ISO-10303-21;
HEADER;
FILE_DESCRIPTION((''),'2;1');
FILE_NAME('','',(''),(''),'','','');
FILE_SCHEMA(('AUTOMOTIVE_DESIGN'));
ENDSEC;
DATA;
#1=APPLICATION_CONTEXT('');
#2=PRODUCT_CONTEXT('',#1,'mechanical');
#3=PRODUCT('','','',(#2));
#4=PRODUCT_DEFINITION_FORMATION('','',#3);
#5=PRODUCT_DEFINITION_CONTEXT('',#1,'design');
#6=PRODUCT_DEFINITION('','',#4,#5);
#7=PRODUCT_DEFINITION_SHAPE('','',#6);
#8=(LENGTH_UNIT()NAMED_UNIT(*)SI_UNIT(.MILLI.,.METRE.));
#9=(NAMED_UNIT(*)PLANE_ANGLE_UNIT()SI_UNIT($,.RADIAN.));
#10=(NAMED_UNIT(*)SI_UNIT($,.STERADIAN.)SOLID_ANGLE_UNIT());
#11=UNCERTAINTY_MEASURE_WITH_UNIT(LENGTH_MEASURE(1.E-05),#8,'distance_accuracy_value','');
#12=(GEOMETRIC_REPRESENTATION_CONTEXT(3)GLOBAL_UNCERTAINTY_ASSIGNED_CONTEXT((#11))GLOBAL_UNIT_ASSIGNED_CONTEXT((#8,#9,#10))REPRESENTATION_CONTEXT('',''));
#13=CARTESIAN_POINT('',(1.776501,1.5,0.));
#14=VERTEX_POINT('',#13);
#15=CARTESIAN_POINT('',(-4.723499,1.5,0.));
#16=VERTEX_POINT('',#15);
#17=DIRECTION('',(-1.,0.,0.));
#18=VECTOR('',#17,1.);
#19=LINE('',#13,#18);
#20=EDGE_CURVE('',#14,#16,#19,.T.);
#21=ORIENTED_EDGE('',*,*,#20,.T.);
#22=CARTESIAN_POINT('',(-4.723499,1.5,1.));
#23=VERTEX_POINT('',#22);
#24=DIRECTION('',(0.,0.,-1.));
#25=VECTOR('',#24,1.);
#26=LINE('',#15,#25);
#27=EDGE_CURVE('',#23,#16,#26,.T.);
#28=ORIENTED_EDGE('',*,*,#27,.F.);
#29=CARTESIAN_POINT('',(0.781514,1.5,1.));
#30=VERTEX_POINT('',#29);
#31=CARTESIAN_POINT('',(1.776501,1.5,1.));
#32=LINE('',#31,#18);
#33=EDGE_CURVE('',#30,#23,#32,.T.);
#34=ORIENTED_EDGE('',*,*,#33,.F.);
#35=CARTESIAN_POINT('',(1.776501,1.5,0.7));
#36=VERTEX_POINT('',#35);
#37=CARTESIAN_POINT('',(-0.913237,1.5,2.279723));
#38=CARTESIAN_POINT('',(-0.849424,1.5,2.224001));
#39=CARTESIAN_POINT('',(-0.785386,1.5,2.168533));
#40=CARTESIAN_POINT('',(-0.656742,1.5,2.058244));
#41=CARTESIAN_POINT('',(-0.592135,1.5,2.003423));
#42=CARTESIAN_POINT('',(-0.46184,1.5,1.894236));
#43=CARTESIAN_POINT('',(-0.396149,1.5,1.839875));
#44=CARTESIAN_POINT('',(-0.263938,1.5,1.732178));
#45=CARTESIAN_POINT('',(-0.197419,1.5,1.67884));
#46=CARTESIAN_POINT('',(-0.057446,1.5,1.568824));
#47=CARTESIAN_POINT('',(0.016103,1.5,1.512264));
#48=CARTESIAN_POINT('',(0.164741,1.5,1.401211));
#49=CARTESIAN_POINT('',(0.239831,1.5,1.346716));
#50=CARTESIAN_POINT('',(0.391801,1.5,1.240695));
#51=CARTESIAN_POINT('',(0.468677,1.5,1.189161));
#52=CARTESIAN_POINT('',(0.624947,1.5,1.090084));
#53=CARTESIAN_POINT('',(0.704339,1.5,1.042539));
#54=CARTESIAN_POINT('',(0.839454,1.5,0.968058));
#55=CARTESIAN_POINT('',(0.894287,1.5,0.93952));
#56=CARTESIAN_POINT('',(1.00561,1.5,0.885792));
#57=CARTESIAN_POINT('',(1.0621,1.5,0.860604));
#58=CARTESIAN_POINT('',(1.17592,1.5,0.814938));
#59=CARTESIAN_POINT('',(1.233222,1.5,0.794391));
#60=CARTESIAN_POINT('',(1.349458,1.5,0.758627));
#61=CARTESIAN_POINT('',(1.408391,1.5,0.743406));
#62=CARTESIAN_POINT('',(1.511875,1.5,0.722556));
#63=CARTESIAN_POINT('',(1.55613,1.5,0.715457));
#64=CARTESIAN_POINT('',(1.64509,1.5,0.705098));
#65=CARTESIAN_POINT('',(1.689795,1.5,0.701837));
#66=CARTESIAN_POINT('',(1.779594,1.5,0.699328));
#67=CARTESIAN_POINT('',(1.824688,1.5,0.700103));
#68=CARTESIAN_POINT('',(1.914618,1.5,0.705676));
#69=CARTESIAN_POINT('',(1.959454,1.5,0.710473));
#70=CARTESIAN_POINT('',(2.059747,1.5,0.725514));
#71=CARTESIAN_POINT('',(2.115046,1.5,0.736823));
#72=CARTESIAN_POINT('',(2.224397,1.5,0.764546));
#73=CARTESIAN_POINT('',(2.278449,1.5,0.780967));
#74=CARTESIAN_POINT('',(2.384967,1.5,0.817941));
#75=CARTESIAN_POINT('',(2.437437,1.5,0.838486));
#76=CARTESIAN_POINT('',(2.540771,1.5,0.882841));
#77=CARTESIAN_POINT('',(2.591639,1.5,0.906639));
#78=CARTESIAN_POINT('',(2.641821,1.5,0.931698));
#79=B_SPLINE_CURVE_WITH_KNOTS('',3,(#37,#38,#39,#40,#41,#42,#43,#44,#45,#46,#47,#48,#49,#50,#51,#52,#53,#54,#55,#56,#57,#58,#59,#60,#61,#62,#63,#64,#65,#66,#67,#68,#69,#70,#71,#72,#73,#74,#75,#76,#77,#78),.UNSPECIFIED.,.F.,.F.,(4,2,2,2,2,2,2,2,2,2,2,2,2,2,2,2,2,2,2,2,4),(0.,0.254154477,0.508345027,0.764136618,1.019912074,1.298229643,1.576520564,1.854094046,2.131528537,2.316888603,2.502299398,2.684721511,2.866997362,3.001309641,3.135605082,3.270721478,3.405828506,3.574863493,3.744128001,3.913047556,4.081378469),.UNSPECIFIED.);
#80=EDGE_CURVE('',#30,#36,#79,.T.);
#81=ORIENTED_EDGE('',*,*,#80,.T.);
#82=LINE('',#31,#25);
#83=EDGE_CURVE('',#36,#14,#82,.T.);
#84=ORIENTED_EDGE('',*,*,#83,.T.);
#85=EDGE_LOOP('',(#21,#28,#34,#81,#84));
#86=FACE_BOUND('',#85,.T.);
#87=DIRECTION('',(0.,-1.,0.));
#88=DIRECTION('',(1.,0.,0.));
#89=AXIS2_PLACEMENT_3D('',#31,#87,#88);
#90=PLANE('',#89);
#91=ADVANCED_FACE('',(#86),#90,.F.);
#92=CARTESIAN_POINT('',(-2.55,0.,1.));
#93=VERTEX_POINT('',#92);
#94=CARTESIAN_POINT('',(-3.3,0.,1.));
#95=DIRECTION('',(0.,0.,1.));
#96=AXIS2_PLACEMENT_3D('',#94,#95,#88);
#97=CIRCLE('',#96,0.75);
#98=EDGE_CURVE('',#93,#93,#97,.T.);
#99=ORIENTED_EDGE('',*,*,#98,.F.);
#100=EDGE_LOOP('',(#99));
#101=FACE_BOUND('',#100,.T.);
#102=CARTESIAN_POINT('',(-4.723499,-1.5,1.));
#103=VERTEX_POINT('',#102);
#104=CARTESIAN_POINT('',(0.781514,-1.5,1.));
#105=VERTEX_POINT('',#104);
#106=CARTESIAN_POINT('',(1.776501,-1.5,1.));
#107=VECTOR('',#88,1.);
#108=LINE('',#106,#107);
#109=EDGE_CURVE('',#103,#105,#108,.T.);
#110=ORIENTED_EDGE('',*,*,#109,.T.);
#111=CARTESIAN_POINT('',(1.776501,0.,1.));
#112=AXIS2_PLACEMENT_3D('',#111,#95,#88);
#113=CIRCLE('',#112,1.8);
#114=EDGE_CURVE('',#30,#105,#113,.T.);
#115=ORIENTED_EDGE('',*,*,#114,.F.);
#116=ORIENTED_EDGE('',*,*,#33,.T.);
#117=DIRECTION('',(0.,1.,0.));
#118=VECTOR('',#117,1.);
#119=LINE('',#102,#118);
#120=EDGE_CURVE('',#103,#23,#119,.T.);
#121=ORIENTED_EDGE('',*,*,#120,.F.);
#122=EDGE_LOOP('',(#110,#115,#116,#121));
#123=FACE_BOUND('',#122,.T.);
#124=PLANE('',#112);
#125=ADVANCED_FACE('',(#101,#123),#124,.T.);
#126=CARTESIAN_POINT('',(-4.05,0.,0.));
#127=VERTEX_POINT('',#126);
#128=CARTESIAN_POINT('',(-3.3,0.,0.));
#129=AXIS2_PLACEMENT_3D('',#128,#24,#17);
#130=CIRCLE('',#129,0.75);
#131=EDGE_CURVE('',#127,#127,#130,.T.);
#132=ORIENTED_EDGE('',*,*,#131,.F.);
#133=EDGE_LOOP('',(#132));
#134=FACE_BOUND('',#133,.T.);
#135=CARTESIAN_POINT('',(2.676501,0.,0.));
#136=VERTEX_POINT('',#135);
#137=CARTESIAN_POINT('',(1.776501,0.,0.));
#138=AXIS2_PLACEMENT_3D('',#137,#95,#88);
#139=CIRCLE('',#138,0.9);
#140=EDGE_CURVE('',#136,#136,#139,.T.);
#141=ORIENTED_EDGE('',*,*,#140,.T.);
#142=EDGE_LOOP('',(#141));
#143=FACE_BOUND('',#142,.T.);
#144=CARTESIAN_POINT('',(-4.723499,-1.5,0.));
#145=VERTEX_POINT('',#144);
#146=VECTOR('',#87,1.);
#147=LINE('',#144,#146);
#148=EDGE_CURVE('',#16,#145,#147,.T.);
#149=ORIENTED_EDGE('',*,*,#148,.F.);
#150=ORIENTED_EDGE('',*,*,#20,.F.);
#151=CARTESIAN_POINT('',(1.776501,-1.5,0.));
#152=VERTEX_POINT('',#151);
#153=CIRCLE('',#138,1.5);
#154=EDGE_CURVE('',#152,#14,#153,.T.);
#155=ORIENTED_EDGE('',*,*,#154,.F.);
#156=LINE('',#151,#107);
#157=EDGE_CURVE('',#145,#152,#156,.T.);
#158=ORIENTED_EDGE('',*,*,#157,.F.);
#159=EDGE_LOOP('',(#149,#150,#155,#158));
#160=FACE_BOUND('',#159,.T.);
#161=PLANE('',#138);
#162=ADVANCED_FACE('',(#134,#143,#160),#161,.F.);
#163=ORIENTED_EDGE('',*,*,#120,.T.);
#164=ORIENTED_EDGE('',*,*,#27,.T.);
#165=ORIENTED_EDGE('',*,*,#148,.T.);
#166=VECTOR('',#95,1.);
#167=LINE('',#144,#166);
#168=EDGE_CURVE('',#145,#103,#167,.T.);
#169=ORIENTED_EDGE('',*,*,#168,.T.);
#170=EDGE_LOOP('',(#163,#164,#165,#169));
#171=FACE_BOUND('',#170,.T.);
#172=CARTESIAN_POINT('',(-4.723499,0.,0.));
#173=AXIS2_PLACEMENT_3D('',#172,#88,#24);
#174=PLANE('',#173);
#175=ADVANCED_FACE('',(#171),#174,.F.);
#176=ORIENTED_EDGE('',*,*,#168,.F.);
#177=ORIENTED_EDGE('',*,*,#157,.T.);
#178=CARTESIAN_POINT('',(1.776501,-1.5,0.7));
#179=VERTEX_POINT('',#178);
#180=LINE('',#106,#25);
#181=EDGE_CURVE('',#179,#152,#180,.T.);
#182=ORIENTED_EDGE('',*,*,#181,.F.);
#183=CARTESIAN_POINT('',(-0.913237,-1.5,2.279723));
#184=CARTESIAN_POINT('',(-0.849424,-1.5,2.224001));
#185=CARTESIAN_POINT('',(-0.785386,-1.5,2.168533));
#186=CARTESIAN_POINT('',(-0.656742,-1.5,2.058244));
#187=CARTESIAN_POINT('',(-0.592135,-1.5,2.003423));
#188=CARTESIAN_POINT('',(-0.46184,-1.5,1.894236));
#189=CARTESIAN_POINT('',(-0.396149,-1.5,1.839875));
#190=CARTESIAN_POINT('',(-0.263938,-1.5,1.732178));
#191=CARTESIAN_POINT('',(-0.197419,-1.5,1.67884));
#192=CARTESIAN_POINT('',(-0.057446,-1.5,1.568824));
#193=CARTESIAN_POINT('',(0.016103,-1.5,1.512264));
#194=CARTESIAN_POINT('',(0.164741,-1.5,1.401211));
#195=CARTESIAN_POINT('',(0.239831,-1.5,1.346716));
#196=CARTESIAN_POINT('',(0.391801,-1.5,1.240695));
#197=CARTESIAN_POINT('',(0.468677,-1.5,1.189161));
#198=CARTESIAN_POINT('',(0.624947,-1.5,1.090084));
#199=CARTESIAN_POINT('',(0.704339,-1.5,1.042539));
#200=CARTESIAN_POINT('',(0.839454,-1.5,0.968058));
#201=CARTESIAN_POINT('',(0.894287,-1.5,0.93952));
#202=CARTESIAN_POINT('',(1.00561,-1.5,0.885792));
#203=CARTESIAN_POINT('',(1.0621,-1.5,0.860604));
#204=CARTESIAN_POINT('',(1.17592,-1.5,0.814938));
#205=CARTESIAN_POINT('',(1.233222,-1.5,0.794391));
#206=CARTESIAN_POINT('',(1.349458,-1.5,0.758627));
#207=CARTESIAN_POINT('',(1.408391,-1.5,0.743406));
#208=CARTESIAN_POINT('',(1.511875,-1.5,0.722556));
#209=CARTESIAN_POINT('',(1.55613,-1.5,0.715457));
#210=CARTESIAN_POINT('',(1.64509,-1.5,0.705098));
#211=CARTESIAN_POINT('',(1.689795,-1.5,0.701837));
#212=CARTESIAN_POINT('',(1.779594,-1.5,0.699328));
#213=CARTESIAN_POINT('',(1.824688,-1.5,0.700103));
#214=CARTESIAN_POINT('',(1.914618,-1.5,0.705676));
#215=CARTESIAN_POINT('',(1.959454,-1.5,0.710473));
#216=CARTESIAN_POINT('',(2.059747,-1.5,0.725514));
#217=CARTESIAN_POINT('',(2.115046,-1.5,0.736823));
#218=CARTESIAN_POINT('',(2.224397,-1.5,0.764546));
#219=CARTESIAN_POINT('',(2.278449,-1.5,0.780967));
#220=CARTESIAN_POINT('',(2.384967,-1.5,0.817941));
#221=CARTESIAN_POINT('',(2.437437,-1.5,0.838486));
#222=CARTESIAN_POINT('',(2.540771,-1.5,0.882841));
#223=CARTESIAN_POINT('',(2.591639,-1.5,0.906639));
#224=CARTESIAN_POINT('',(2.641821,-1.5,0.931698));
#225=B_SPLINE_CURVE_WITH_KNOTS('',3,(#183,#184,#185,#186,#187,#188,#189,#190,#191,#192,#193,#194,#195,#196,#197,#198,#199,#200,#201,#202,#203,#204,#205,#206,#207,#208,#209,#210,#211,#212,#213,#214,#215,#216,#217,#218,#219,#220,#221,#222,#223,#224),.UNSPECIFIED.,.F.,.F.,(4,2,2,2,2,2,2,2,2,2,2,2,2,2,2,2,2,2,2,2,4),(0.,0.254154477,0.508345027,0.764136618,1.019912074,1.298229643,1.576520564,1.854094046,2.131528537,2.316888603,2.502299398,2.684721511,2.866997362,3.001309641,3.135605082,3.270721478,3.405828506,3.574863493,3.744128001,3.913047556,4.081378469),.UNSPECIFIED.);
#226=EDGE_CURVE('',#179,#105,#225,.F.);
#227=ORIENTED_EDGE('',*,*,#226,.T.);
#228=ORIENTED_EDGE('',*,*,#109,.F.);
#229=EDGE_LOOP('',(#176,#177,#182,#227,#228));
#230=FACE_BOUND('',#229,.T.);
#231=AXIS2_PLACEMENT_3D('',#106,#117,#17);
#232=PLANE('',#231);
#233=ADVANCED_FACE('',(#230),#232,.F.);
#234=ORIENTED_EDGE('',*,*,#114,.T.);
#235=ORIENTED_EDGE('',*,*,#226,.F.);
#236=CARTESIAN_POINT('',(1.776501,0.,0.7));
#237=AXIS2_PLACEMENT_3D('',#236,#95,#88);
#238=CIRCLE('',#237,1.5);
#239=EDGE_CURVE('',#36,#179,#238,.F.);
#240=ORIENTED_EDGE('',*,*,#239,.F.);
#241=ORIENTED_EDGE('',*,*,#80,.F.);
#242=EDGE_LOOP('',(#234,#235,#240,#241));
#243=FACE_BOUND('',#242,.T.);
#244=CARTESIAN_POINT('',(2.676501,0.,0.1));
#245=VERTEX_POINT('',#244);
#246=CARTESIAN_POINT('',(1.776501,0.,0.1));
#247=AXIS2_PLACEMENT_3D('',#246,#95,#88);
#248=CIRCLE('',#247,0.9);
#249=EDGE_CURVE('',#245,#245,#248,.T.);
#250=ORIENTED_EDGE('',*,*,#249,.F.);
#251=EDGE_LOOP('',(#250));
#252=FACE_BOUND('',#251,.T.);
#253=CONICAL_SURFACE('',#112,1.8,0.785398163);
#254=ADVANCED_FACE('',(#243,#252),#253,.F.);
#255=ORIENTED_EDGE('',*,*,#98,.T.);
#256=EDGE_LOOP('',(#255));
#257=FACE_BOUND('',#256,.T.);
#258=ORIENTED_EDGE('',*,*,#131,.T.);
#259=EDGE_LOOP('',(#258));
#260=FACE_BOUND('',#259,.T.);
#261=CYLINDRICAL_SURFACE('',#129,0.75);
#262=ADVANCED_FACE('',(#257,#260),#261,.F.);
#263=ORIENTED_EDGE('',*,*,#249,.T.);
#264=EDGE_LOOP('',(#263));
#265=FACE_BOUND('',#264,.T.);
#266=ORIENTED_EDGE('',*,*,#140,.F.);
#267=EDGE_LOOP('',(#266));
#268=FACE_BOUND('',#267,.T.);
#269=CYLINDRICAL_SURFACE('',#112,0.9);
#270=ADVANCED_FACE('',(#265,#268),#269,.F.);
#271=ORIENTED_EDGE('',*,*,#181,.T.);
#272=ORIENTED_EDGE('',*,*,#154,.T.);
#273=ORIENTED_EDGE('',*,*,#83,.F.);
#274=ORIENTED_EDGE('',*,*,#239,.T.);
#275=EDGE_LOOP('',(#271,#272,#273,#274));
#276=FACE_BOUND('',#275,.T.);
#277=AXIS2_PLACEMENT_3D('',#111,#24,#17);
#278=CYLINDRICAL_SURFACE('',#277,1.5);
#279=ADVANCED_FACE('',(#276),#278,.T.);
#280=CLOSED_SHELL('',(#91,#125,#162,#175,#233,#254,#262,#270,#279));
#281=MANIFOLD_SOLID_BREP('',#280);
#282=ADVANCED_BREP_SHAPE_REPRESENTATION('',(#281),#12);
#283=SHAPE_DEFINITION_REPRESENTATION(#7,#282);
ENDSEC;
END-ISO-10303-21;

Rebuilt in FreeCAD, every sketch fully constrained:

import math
import FreeCAD as App
import Part
import Sketcher
from FreeCAD import Vector
Q = App.Units.Quantity

doc = App.newDocument("Part")
params = doc.addObject("Spreadsheet::Sheet", "Params")
for row, (alias, value) in enumerate([
    ("sketch1_radius", "1.5 mm"),
    ("sketch1_width", "1.5 mm"),
    ("pad1_length", "1 mm"),
    ("sketch2_width", "3 mm"),
    ("sketch2_height", "1 mm"),
    ("pad2_length", "5 mm"),
    ("sketch3_diameter", "1.5 mm"),
    ("hole_diameter", "1.5 mm"),
    ("sketch4_height", "1 mm"),
    ("sketch4_width", "1.8 mm"),
    ("sketch4_width2", "0.9 mm"),
    ("groove_angle", "360 deg"),
], start=1):
    params.set(f"A{row}", alias)
    params.set(f"B{row}", "=" + value)
    params.setAlias(f"B{row}", alias)

body = doc.addObject("PartDesign::Body", "Body")

sketch1 = body.newObject("Sketcher::SketchObject", "Sketch")
sketch1.AttachmentSupport = (doc.getObject("XY_Plane"), [""])
sketch1.MapMode = "FlatFace"
sketch1.addGeometry([
    Part.LineSegment(Vector(1.8, 1.5, 0), Vector(0.3, 1.5, 0)),
    Part.LineSegment(Vector(0.3, 1.5, 0), Vector(0.3, -1.5, 0)),
    Part.LineSegment(Vector(0.3, -1.5, 0), Vector(1.8, -1.5, 0)),
    Part.ArcOfCircle(Part.Circle(Vector(1.8, 0, 0), Vector(0, 0, 1), 1.5), math.radians(-90), math.radians(90)),
], False)
sketch1.addConstraint([
    Sketcher.Constraint("Coincident", 0, 2, 1, 1),
    Sketcher.Constraint("Coincident", 1, 2, 2, 1),
    Sketcher.Constraint("Tangent", 2, 2, 3, 1),
    Sketcher.Constraint("Tangent", 3, 2, 0, 1),
    Sketcher.Constraint("Horizontal", 0),
    Sketcher.Constraint("Vertical", 1),
    Sketcher.Constraint("Horizontal", 2),
    Sketcher.Constraint("PointOnObject", 3, 3, -1),
    Sketcher.Constraint("Radius", 3, 1.5),
    Sketcher.Constraint("DistanceX", 0, 2, 0, 1, 1.5),
    Sketcher.Constraint("DistanceX", -1, 1, 3, 3, 1.776501),
])
sketch1.setExpression("Constraints[8]", "Params.sketch1_radius")
sketch1.setExpression("Constraints[9]", "Params.sketch1_width")
pad1 = body.newObject("PartDesign::Pad", "Pad")
pad1.Profile = sketch1
pad1.setExpression("Length", "Params.pad1_length")

sketch2 = body.newObject("Sketcher::SketchObject", "Sketch001")
sketch2.AttachmentSupport = (doc.getObject("YZ_Plane"), [""])
sketch2.MapMode = "FlatFace"
sketch2.AttachmentOffset = App.Placement(Vector(0, 0, 0.276501), App.Rotation())
sketch2.addGeometry([
    Part.LineSegment(Vector(1.5, 0, 0), Vector(-1.5, 0, 0)),
    Part.LineSegment(Vector(-1.5, 0, 0), Vector(-1.5, 1, 0)),
    Part.LineSegment(Vector(-1.5, 1, 0), Vector(1.5, 1, 0)),
    Part.LineSegment(Vector(1.5, 1, 0), Vector(1.5, 0, 0)),
], False)
sketch2.addConstraint([
    Sketcher.Constraint("Coincident", 0, 2, 1, 1),
    Sketcher.Constraint("Coincident", 1, 2, 2, 1),
    Sketcher.Constraint("Coincident", 2, 2, 3, 1),
    Sketcher.Constraint("Coincident", 3, 2, 0, 1),
    Sketcher.Constraint("Horizontal", 0),
    Sketcher.Constraint("Vertical", 1),
    Sketcher.Constraint("Horizontal", 2),
    Sketcher.Constraint("Vertical", 3),
    Sketcher.Constraint("Symmetric", 0, 2, 3, 2, -1, 1),
    Sketcher.Constraint("DistanceX", 0, 2, 0, 1, 3.0),
    Sketcher.Constraint("DistanceY", 1, 1, 1, 2, 1.0),
])
sketch2.setExpression("Constraints[9]", "Params.sketch2_width")
sketch2.setExpression("Constraints[10]", "Params.sketch2_height")
pad2 = body.newObject("PartDesign::Pad", "Pad001")
pad2.Profile = sketch2
pad2.setExpression("Length", "Params.pad2_length")
pad2.Reversed = True

sketch3 = body.newObject("Sketcher::SketchObject", "Sketch002")
sketch3.AttachmentSupport = (doc.getObject("XY_Plane"), [""])
sketch3.MapMode = "FlatFace"
sketch3.addGeometry(Part.Circle(Vector(-3.3, 0, 0), Vector(0, 0, 1), 0.8), False)
sketch3.addConstraint([
    Sketcher.Constraint("PointOnObject", 0, 3, -1),
    Sketcher.Constraint("Diameter", 0, 1.5),
    Sketcher.Constraint("DistanceX", 0, 3, -1, 1, 3.3),
])
sketch3.setExpression("Constraints[1]", "Params.sketch3_diameter")
doc.recompute()
hole = body.newObject("PartDesign::Hole", "Hole")
hole.Profile = sketch3
hole.ThreadType = "None"
hole.setExpression("Diameter", "Params.hole_diameter")
hole.DepthType = "ThroughAll"
hole.Reversed = True

sketch4 = body.newObject("Sketcher::SketchObject", "Sketch003")
sketch4.AttachmentSupport = (doc.getObject("YZ_Plane"), [""])
sketch4.MapMode = "FlatFace"
sketch4.AttachmentOffset = App.Placement(Vector(0, 0, 1.776501), App.Rotation())
sketch4.addGeometry([
    Part.LineSegment(Vector(0, 0, 0), Vector(0, 1, 0)),
    Part.LineSegment(Vector(0, 1, 0), Vector(-1.8, 1, 0)),
    Part.LineSegment(Vector(-1.8, 1, 0), Vector(-0.9, 0.1, 0)),
    Part.LineSegment(Vector(-0.9, 0.1, 0), Vector(-0.9, 0, 0)),
    Part.LineSegment(Vector(-0.9, 0, 0), Vector(0, 0, 0)),
], False)
sketch4.addConstraint([
    Sketcher.Constraint("Coincident", 0, 2, 1, 1),
    Sketcher.Constraint("Coincident", 1, 2, 2, 1),
    Sketcher.Constraint("Coincident", 2, 2, 3, 1),
    Sketcher.Constraint("Coincident", 3, 2, 4, 1),
    Sketcher.Constraint("Coincident", 4, 2, 0, 1),
    Sketcher.Constraint("Vertical", 0),
    Sketcher.Constraint("Horizontal", 1),
    Sketcher.Constraint("Vertical", 3),
    Sketcher.Constraint("Horizontal", 4),
    Sketcher.Constraint("Coincident", 4, 2, -1, 1),
    Sketcher.Constraint("DistanceY", 0, 1, 0, 2, 1.0),
    Sketcher.Constraint("Angle", 2, Q("-45 deg")),
    Sketcher.Constraint("DistanceX", 1, 2, 1, 1, 1.8),
    Sketcher.Constraint("DistanceX", 4, 1, 4, 2, 0.9),
])
sketch4.setExpression("Constraints[10]", "Params.sketch4_height")
sketch4.setExpression("Constraints[12]", "Params.sketch4_width")
sketch4.setExpression("Constraints[13]", "Params.sketch4_width2")
groove = body.newObject("PartDesign::Groove", "Groove")
groove.Profile = sketch4
groove.ReferenceAxis = (sketch4, ["V_Axis"])
groove.setExpression("Angle", "Params.groove_angle")

doc.recompute()
